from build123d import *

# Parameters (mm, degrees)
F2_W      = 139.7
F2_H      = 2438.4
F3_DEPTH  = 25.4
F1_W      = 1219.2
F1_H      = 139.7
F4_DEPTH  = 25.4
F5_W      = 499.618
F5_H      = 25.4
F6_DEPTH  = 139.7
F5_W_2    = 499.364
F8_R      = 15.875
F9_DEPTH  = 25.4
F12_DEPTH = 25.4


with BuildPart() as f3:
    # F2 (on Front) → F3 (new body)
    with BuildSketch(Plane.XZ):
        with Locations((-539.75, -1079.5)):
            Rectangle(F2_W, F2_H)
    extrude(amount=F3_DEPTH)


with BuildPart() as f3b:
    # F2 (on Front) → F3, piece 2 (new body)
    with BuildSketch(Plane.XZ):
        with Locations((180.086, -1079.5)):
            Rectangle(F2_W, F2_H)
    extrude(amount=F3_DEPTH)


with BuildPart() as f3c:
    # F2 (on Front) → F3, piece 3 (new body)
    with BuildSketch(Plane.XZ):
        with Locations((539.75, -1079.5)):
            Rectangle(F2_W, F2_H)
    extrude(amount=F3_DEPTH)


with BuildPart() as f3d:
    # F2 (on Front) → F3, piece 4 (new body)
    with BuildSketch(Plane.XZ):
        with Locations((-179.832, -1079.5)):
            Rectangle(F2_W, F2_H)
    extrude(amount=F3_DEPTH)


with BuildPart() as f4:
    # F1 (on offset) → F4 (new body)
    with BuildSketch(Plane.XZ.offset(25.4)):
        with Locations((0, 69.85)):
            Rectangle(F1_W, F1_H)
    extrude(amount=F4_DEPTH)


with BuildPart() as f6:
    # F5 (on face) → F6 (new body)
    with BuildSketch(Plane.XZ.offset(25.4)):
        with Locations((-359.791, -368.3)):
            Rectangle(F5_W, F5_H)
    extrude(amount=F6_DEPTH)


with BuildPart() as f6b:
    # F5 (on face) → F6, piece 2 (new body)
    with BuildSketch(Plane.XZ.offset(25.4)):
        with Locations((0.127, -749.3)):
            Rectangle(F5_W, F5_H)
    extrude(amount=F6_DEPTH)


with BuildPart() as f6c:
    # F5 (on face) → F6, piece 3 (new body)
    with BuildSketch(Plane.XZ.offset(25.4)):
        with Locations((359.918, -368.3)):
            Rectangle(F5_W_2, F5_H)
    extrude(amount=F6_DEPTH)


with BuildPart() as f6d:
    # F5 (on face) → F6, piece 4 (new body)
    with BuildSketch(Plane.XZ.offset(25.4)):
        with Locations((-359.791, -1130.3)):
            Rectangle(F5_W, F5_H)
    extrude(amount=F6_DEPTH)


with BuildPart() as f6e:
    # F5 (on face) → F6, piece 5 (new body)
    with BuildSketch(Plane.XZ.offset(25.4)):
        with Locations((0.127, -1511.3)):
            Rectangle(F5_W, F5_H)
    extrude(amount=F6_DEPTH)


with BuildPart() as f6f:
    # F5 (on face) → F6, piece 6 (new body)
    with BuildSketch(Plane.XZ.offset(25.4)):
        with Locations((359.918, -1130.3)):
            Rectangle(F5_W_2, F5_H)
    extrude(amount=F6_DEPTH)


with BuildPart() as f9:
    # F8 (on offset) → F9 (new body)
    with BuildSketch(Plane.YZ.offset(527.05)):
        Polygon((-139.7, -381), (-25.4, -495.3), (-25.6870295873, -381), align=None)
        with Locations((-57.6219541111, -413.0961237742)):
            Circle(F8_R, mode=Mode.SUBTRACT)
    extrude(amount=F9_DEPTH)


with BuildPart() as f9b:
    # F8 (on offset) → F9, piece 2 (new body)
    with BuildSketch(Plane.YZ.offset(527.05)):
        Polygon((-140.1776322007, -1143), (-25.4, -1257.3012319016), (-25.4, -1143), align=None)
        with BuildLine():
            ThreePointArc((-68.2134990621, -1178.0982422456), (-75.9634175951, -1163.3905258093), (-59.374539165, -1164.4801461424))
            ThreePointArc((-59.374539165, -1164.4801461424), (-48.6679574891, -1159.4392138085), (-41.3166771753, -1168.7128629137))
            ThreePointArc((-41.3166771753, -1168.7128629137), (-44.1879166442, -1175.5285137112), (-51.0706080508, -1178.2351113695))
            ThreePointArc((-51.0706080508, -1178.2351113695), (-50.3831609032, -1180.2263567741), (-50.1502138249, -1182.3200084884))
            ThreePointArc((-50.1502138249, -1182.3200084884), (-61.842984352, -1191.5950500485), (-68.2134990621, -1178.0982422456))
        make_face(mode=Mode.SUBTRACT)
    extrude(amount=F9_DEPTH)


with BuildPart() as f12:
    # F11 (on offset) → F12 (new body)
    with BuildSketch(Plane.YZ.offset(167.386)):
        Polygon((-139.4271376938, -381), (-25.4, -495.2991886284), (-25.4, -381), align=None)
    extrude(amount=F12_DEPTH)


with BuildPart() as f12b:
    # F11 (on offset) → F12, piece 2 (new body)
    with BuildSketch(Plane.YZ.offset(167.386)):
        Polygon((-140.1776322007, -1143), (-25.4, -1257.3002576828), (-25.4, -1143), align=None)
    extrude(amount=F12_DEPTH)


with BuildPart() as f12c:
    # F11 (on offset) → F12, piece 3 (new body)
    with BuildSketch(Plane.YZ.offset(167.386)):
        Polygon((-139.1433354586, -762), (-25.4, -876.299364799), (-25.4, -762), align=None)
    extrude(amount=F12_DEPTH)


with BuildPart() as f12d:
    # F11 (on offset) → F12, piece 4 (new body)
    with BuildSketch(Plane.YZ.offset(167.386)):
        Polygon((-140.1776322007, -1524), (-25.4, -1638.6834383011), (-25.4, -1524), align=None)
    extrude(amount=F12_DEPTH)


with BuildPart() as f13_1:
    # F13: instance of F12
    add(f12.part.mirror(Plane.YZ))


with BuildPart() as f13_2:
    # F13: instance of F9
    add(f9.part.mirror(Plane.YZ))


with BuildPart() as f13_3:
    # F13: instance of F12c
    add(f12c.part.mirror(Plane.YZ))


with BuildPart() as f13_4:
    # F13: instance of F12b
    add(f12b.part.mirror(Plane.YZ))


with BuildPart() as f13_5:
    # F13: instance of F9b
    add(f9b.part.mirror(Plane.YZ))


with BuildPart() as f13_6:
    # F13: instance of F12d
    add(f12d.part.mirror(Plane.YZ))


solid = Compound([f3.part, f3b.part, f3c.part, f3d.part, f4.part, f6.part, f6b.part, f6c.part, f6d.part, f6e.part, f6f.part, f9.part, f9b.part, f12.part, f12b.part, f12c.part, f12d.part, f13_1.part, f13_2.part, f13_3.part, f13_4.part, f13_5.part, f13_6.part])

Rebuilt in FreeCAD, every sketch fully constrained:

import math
import FreeCAD as App
import Part
import Sketcher

V = App.Vector
Q = App.Units.Quantity

doc = App.newDocument("Part")
body = doc.addObject("PartDesign::Body", "Body")

sketch1 = body.newObject("Sketcher::SketchObject", "Sketch")
sketch1.AttachmentSupport = (doc.getObject("XZ_Plane"), [""])
sketch1.MapMode = "FlatFace"
sketch1.addGeometry(Part.LineSegment(V(-610, 140, 0), V(-610, -2299, 0)), False)
sketch1.addGeometry(Part.LineSegment(V(-610, -2299, 0), V(-470, -2299, 0)), False)
sketch1.addGeometry(Part.LineSegment(V(-470, -2299, 0), V(-470, 140, 0)), False)
sketch1.addGeometry(Part.LineSegment(V(-470, 140, 0), V(-610, 140, 0)), False)
sketch1.addConstraint(Sketcher.Constraint("Coincident", 0, 2, 1, 1))
sketch1.addConstraint(Sketcher.Constraint("Coincident", 1, 2, 2, 1))
sketch1.addConstraint(Sketcher.Constraint("Coincident", 2, 2, 3, 1))
sketch1.addConstraint(Sketcher.Constraint("Coincident", 3, 2, 0, 1))
sketch1.addConstraint(Sketcher.Constraint("Vertical", 0))
sketch1.addConstraint(Sketcher.Constraint("Horizontal", 1))
sketch1.addConstraint(Sketcher.Constraint("Vertical", 2))
sketch1.addConstraint(Sketcher.Constraint("Horizontal", 3))
sketch1.addConstraint(Sketcher.Constraint("DistanceY", 0, 2, 0, 1, Q("96 in")))
sketch1.addConstraint(Sketcher.Constraint("DistanceX", 1, 1, 1, 2, Q("5.5 in")))
sketch1.addConstraint(Sketcher.Constraint("DistanceX", 0, 2, -1, 1, Q("24 in")))
sketch1.addConstraint(Sketcher.Constraint("DistanceY", 0, 2, -1, 1, Q("90.5 in")))
pad1 = body.newObject("PartDesign::Pad", "Pad")
pad1.Profile = sketch1
pad1.Length = Q("1 in")
body2 = doc.addObject("PartDesign::Body", "Body001")

sketch2 = body2.newObject("Sketcher::SketchObject", "Sketch001")
sketch2.AttachmentSupport = (doc.getObject("XZ_Plane001"), [""])
sketch2.MapMode = "FlatFace"
sketch2.addGeometry(Part.LineSegment(V(110, 140, 0), V(110, -2299, 0)), False)
sketch2.addGeometry(Part.LineSegment(V(110, -2299, 0), V(250, -2299, 0)), False)
sketch2.addGeometry(Part.LineSegment(V(250, -2299, 0), V(250, 140, 0)), False)
sketch2.addGeometry(Part.LineSegment(V(250, 140, 0), V(110, 140, 0)), False)
sketch2.addConstraint(Sketcher.Constraint("Coincident", 0, 2, 1, 1))
sketch2.addConstraint(Sketcher.Constraint("Coincident", 1, 2, 2, 1))
sketch2.addConstraint(Sketcher.Constraint("Coincident", 2, 2, 3, 1))
sketch2.addConstraint(Sketcher.Constraint("Coincident", 3, 2, 0, 1))
sketch2.addConstraint(Sketcher.Constraint("Vertical", 0))
sketch2.addConstraint(Sketcher.Constraint("Horizontal", 1))
sketch2.addConstraint(Sketcher.Constraint("Vertical", 2))
sketch2.addConstraint(Sketcher.Constraint("Horizontal", 3))
sketch2.addConstraint(Sketcher.Constraint("DistanceY", 0, 2, 0, 1, Q("96 in")))
sketch2.addConstraint(Sketcher.Constraint("DistanceX", 1, 1, 1, 2, Q("5.5 in")))
sketch2.addConstraint(Sketcher.Constraint("DistanceY", 0, 2, -1, 1, Q("90.5 in")))
sketch2.addConstraint(Sketcher.Constraint("DistanceX", -1, 1, 0, 2, Q("4.34 in")))
pad2 = body2.newObject("PartDesign::Pad", "Pad001")
pad2.Profile = sketch2
pad2.Length = Q("1 in")
body3 = doc.addObject("PartDesign::Body", "Body002")

sketch3 = body3.newObject("Sketcher::SketchObject", "Sketch002")
sketch3.AttachmentSupport = (doc.getObject("XZ_Plane002"), [""])
sketch3.MapMode = "FlatFace"
sketch3.addGeometry(Part.LineSegment(V(470, 140, 0), V(470, -2299, 0)), False)
sketch3.addGeometry(Part.LineSegment(V(470, -2299, 0), V(610, -2299, 0)), False)
sketch3.addGeometry(Part.LineSegment(V(610, -2299, 0), V(610, 140, 0)), False)
sketch3.addGeometry(Part.LineSegment(V(610, 140, 0), V(470, 140, 0)), False)
sketch3.addConstraint(Sketcher.Constraint("Coincident", 0, 2, 1, 1))
sketch3.addConstraint(Sketcher.Constraint("Coincident", 1, 2, 2, 1))
sketch3.addConstraint(Sketcher.Constraint("Coincident", 2, 2, 3, 1))
sketch3.addConstraint(Sketcher.Constraint("Coincident", 3, 2, 0, 1))
sketch3.addConstraint(Sketcher.Constraint("Vertical", 0))
sketch3.addConstraint(Sketcher.Constraint("Horizontal", 1))
sketch3.addConstraint(Sketcher.Constraint("Vertical", 2))
sketch3.addConstraint(Sketcher.Constraint("Horizontal", 3))
sketch3.addConstraint(Sketcher.Constraint("DistanceY", 0, 2, 0, 1, Q("96 in")))
sketch3.addConstraint(Sketcher.Constraint("DistanceX", 1, 1, 1, 2, Q("5.5 in")))
sketch3.addConstraint(Sketcher.Constraint("DistanceX", -1, 1, 1, 2, Q("24 in")))
sketch3.addConstraint(Sketcher.Constraint("DistanceY", 0, 2, -1, 1, Q("90.5 in")))
pad3 = body3.newObject("PartDesign::Pad", "Pad002")
pad3.Profile = sketch3
pad3.Length = Q("1 in")
body4 = doc.addObject("PartDesign::Body", "Body003")

sketch4 = body4.newObject("Sketcher::SketchObject", "Sketch003")
sketch4.AttachmentSupport = (doc.getObject("XZ_Plane003"), [""])
sketch4.MapMode = "FlatFace"
sketch4.addGeometry(Part.LineSegment(V(-250, 140, 0), V(-250, -2299, 0)), False)
sketch4.addGeometry(Part.LineSegment(V(-250, -2299, 0), V(-110, -2299, 0)), False)
sketch4.addGeometry(Part.LineSegment(V(-110, -2299, 0), V(-110, 140, 0)), False)
sketch4.addGeometry(Part.LineSegment(V(-110, 140, 0), V(-250, 140, 0)), False)
sketch4.addConstraint(Sketcher.Constraint("Coincident", 0, 2, 1, 1))
sketch4.addConstraint(Sketcher.Constraint("Coincident", 1, 2, 2, 1))
sketch4.addConstraint(Sketcher.Constraint("Coincident", 2, 2, 3, 1))
sketch4.addConstraint(Sketcher.Constraint("Coincident", 3, 2, 0, 1))
sketch4.addConstraint(Sketcher.Constraint("Vertical", 0))
sketch4.addConstraint(Sketcher.Constraint("Horizontal", 1))
sketch4.addConstraint(Sketcher.Constraint("Vertical", 2))
sketch4.addConstraint(Sketcher.Constraint("Horizontal", 3))
sketch4.addConstraint(Sketcher.Constraint("DistanceY", 0, 2, 0, 1, Q("96 in")))
sketch4.addConstraint(Sketcher.Constraint("DistanceX", 1, 1, 1, 2, Q("5.5 in")))
sketch4.addConstraint(Sketcher.Constraint("DistanceY", 0, 2, -1, 1, Q("90.5 in")))
sketch4.addConstraint(Sketcher.Constraint("DistanceX", 0, 2, -1, 1, Q("9.83 in")))
pad4 = body4.newObject("PartDesign::Pad", "Pad003")
pad4.Profile = sketch4
pad4.Length = Q("1 in")
body5 = doc.addObject("PartDesign::Body", "Body004")

sketch5 = body5.newObject("Sketcher::SketchObject", "Sketch004")
sketch5.AttachmentSupport = (doc.getObject("XZ_Plane004"), [""])
sketch5.MapMode = "FlatFace"
sketch5.AttachmentOffset = App.Placement(V(0, 0, 1 * 25.4), App.Rotation())
sketch5.addGeometry(Part.LineSegment(V(-610, 140, 0), V(-610, 0, 0)), False)
sketch5.addGeometry(Part.LineSegment(V(-610, 0, 0), V(610, 0, 0)), False)
sketch5.addGeometry(Part.LineSegment(V(610, 0, 0), V(610, 140, 0)), False)
sketch5.addGeometry(Part.LineSegment(V(610, 140, 0), V(-610, 140, 0)), False)
sketch5.addConstraint(Sketcher.Constraint("Coincident", 0, 2, 1, 1))
sketch5.addConstraint(Sketcher.Constraint("Coincident", 1, 2, 2, 1))
sketch5.addConstraint(Sketcher.Constraint("Coincident", 2, 2, 3, 1))
sketch5.addConstraint(Sketcher.Constraint("Coincident", 3, 2, 0, 1))
sketch5.addConstraint(Sketcher.Constraint("Vertical", 0))
sketch5.addConstraint(Sketcher.Constraint("Horizontal", 1))
sketch5.addConstraint(Sketcher.Constraint("Vertical", 2))
sketch5.addConstraint(Sketcher.Constraint("Horizontal", 3))
sketch5.addConstraint(Sketcher.Constraint("Symmetric", 0, 2, 1, 2, -1, 1))
sketch5.addConstraint(Sketcher.Constraint("DistanceX", 1, 1, 1, 2, Q("48 in")))
sketch5.addConstraint(Sketcher.Constraint("DistanceY", 0, 2, 0, 1, Q("5.5 in")))
pad5 = body5.newObject("PartDesign::Pad", "Pad004")
pad5.Profile = sketch5
pad5.Length = Q("1 in")
body6 = doc.addObject("PartDesign::Body", "Body005")

sketch6 = body6.newObject("Sketcher::SketchObject", "Sketch005")
sketch6.AttachmentSupport = (doc.getObject("XZ_Plane005"), [""])
sketch6.MapMode = "FlatFace"
sketch6.AttachmentOffset = App.Placement(V(0, 0, 1 * 25.4), App.Rotation())
sketch6.addGeometry(Part.LineSegment(V(-610, -356, 0), V(-610, -381, 0)), False)
sketch6.addGeometry(Part.LineSegment(V(-610, -381, 0), V(-110, -381, 0)), False)
sketch6.addGeometry(Part.LineSegment(V(-110, -381, 0), V(-110, -356, 0)), False)
sketch6.addGeometry(Part.LineSegment(V(-110, -356, 0), V(-610, -356, 0)), False)
sketch6.addConstraint(Sketcher.Constraint("Coincident", 0, 2, 1, 1))
sketch6.addConstraint(Sketcher.Constraint("Coincident", 1, 2, 2, 1))
sketch6.addConstraint(Sketcher.Constraint("Coincident", 2, 2, 3, 1))
sketch6.addConstraint(Sketcher.Constraint("Coincident", 3, 2, 0, 1))
sketch6.addConstraint(Sketcher.Constraint("Vertical", 0))
sketch6.addConstraint(Sketcher.Constraint("Horizontal", 1))
sketch6.addConstraint(Sketcher.Constraint("Vertical", 2))
sketch6.addConstraint(Sketcher.Constraint("Horizontal", 3))
sketch6.addConstraint(Sketcher.Constraint("DistanceY", 0, 2, 0, 1, Q("1 in")))
sketch6.addConstraint(Sketcher.Constraint("DistanceX", 0, 2, -1, 1, Q("24 in")))
sketch6.addConstraint(Sketcher.Constraint("DistanceY", 0, 2, -1, 1, Q("15 in")))
sketch6.addConstraint(Sketcher.Constraint("DistanceX", 1, 1, 1, 2, Q("19.67 in")))
pad6 = body6.newObject("PartDesign::Pad", "Pad005")
pad6.Profile = sketch6
pad6.Length = Q("5.5 in")
body7 = doc.addObject("PartDesign::Body", "Body006")

sketch7 = body7.newObject("Sketcher::SketchObject", "Sketch006")
sketch7.AttachmentSupport = (doc.getObject("XZ_Plane006"), [""])
sketch7.MapMode = "FlatFace"
sketch7.AttachmentOffset = App.Placement(V(0, 0, 1 * 25.4), App.Rotation())
sketch7.addGeometry(Part.LineSegment(V(-250, -737, 0), V(-250, -762, 0)), False)
sketch7.addGeometry(Part.LineSegment(V(-250, -762, 0), V(250, -762, 0)), False)
sketch7.addGeometry(Part.LineSegment(V(250, -762, 0), V(250, -737, 0)), False)
sketch7.addGeometry(Part.LineSegment(V(250, -737, 0), V(-250, -737, 0)), False)
sketch7.addConstraint(Sketcher.Constraint("Coincident", 0, 2, 1, 1))
sketch7.addConstraint(Sketcher.Constraint("Coincident", 1, 2, 2, 1))
sketch7.addConstraint(Sketcher.Constraint("Coincident", 2, 2, 3, 1))
sketch7.addConstraint(Sketcher.Constraint("Coincident", 3, 2, 0, 1))
sketch7.addConstraint(Sketcher.Constraint("Vertical", 0))
sketch7.addConstraint(Sketcher.Constraint("Horizontal", 1))
sketch7.addConstraint(Sketcher.Constraint("Vertical", 2))
sketch7.addConstraint(Sketcher.Constraint("Horizontal", 3))
sketch7.addConstraint(Sketcher.Constraint("DistanceY", 0, 2, 0, 1, Q("1 in")))
sketch7.addConstraint(Sketcher.Constraint("DistanceY", 0, 2, -1, 1, Q("30 in")))
sketch7.addConstraint(Sketcher.Constraint("DistanceX", 1, 1, 1, 2, Q("19.67 in")))
sketch7.addConstraint(Sketcher.Constraint("DistanceX", 0, 2, -1, 1, Q("9.83 in")))
pad7 = body7.newObject("PartDesign::Pad", "Pad006")
pad7.Profile = sketch7
pad7.Length = Q("5.5 in")
body8 = doc.addObject("PartDesign::Body", "Body007")

sketch8 = body8.newObject("Sketcher::SketchObject", "Sketch007")
sketch8.AttachmentSupport = (doc.getObject("XZ_Plane007"), [""])
sketch8.MapMode = "FlatFace"
sketch8.AttachmentOffset = App.Placement(V(0, 0, 1 * 25.4), App.Rotation())
sketch8.addGeometry(Part.LineSegment(V(110, -356, 0), V(110, -381, 0)), False)
sketch8.addGeometry(Part.LineSegment(V(110, -381, 0), V(610, -381, 0)), False)
sketch8.addGeometry(Part.LineSegment(V(610, -381, 0), V(610, -356, 0)), False)
sketch8.addGeometry(Part.LineSegment(V(610, -356, 0), V(110, -356, 0)), False)
sketch8.addConstraint(Sketcher.Constraint("Coincident", 0, 2, 1, 1))
sketch8.addConstraint(Sketcher.Constraint("Coincident", 1, 2, 2, 1))
sketch8.addConstraint(Sketcher.Constraint("Coincident", 2, 2, 3, 1))
sketch8.addConstraint(Sketcher.Constraint("Coincident", 3, 2, 0, 1))
sketch8.addConstraint(Sketcher.Constraint("Vertical", 0))
sketch8.addConstraint(Sketcher.Constraint("Horizontal", 1))
sketch8.addConstraint(Sketcher.Constraint("Vertical", 2))
sketch8.addConstraint(Sketcher.Constraint("Horizontal", 3))
sketch8.addConstraint(Sketcher.Constraint("DistanceY", 0, 2, 0, 1, Q("1 in")))
sketch8.addConstraint(Sketcher.Constraint("DistanceY", 0, 2, -1, 1, Q("15 in")))
sketch8.addConstraint(Sketcher.Constraint("DistanceX", -1, 1, 1, 2, Q("24 in")))
sketch8.addConstraint(Sketcher.Constraint("DistanceX", 1, 1, 1, 2, Q("19.66 in")))
pad8 = body8.newObject("PartDesign::Pad", "Pad007")
pad8.Profile = sketch8
pad8.Length = Q("5.5 in")
body9 = doc.addObject("PartDesign::Body", "Body008")

sketch9 = body9.newObject("Sketcher::SketchObject", "Sketch008")
sketch9.AttachmentSupport = (doc.getObject("XZ_Plane008"), [""])
sketch9.MapMode = "FlatFace"
sketch9.AttachmentOffset = App.Placement(V(0, 0, 1 * 25.4), App.Rotation())
sketch9.addGeometry(Part.LineSegment(V(-610, -1118, 0), V(-610, -1143, 0)), False)
sketch9.addGeometry(Part.LineSegment(V(-610, -1143, 0), V(-110, -1143, 0)), False)
sketch9.addGeometry(Part.LineSegment(V(-110, -1143, 0), V(-110, -1118, 0)), False)
sketch9.addGeometry(Part.LineSegment(V(-110, -1118, 0), V(-610, -1118, 0)), False)
sketch9.addConstraint(Sketcher.Constraint("Coincident", 0, 2, 1, 1))
sketch9.addConstraint(Sketcher.Constraint("Coincident", 1, 2, 2, 1))
sketch9.addConstraint(Sketcher.Constraint("Coincident", 2, 2, 3, 1))
sketch9.addConstraint(Sketcher.Constraint("Coincident", 3, 2, 0, 1))
sketch9.addConstraint(Sketcher.Constraint("Vertical", 0))
sketch9.addConstraint(Sketcher.Constraint("Horizontal", 1))
sketch9.addConstraint(Sketcher.Constraint("Vertical", 2))
sketch9.addConstraint(Sketcher.Constraint("Horizontal", 3))
sketch9.addConstraint(Sketcher.Constraint("DistanceY", 0, 2, 0, 1, Q("1 in")))
sketch9.addConstraint(Sketcher.Constraint("DistanceX", 0, 2, -1, 1, Q("24 in")))
sketch9.addConstraint(Sketcher.Constraint("DistanceY", 0, 2, -1, 1, Q("45 in")))
sketch9.addConstraint(Sketcher.Constraint("DistanceX", 1, 1, 1, 2, Q("19.67 in")))
pad9 = body9.newObject("PartDesign::Pad", "Pad008")
pad9.Profile = sketch9
pad9.Length = Q("5.5 in")
body10 = doc.addObject("PartDesign::Body", "Body009")

sketch10 = body10.newObject("Sketcher::SketchObject", "Sketch009")
sketch10.AttachmentSupport = (doc.getObject("XZ_Plane009"), [""])
sketch10.MapMode = "FlatFace"
sketch10.AttachmentOffset = App.Placement(V(0, 0, 1 * 25.4), App.Rotation())
sketch10.addGeometry(Part.LineSegment(V(-250, -1499, 0), V(-250, -1524, 0)), False)
sketch10.addGeometry(Part.LineSegment(V(-250, -1524, 0), V(250, -1524, 0)), False)
sketch10.addGeometry(Part.LineSegment(V(250, -1524, 0), V(250, -1499, 0)), False)
sketch10.addGeometry(Part.LineSegment(V(250, -1499, 0), V(-250, -1499, 0)), False)
sketch10.addConstraint(Sketcher.Constraint("Coincident", 0, 2, 1, 1))
sketch10.addConstraint(Sketcher.Constraint("Coincident", 1, 2, 2, 1))
sketch10.addConstraint(Sketcher.Constraint("Coincident", 2, 2, 3, 1))
sketch10.addConstraint(Sketcher.Constraint("Coincident", 3, 2, 0, 1))
sketch10.addConstraint(Sketcher.Constraint("Vertical", 0))
sketch10.addConstraint(Sketcher.Constraint("Horizontal", 1))
sketch10.addConstraint(Sketcher.Constraint("Vertical", 2))
sketch10.addConstraint(Sketcher.Constraint("Horizontal", 3))
sketch10.addConstraint(Sketcher.Constraint("DistanceY", 0, 2, 0, 1, Q("1 in")))
sketch10.addConstraint(Sketcher.Constraint("DistanceY", 0, 2, -1, 1, Q("60 in")))
sketch10.addConstraint(Sketcher.Constraint("DistanceX", 1, 1, 1, 2, Q("19.67 in")))
sketch10.addConstraint(Sketcher.Constraint("DistanceX", 0, 2, -1, 1, Q("9.83 in")))
pad10 = body10.newObject("PartDesign::Pad", "Pad009")
pad10.Profile = sketch10
pad10.Length = Q("5.5 in")
body11 = doc.addObject("PartDesign::Body", "Body010")

sketch11 = body11.newObject("Sketcher::SketchObject", "Sketch010")
sketch11.AttachmentSupport = (doc.getObject("XZ_Plane010"), [""])
sketch11.MapMode = "FlatFace"
sketch11.AttachmentOffset = App.Placement(V(0, 0, 1 * 25.4), App.Rotation())
sketch11.addGeometry(Part.LineSegment(V(110, -1118, 0), V(110, -1143, 0)), False)
sketch11.addGeometry(Part.LineSegment(V(110, -1143, 0), V(610, -1143, 0)), False)
sketch11.addGeometry(Part.LineSegment(V(610, -1143, 0), V(610, -1118, 0)), False)
sketch11.addGeometry(Part.LineSegment(V(610, -1118, 0), V(110, -1118, 0)), False)
sketch11.addConstraint(Sketcher.Constraint("Coincident", 0, 2, 1, 1))
sketch11.addConstraint(Sketcher.Constraint("Coincident", 1, 2, 2, 1))
sketch11.addConstraint(Sketcher.Constraint("Coincident", 2, 2, 3, 1))
sketch11.addConstraint(Sketcher.Constraint("Coincident", 3, 2, 0, 1))
sketch11.addConstraint(Sketcher.Constraint("Vertical", 0))
sketch11.addConstraint(Sketcher.Constraint("Horizontal", 1))
sketch11.addConstraint(Sketcher.Constraint("Vertical", 2))
sketch11.addConstraint(Sketcher.Constraint("Horizontal", 3))
sketch11.addConstraint(Sketcher.Constraint("DistanceY", 0, 2, 0, 1, Q("1 in")))
sketch11.addConstraint(Sketcher.Constraint("DistanceY", 0, 2, -1, 1, Q("45 in")))
sketch11.addConstraint(Sketcher.Constraint("DistanceX", -1, 1, 1, 2, Q("24 in")))
sketch11.addConstraint(Sketcher.Constraint("DistanceX", 1, 1, 1, 2, Q("19.66 in")))
pad11 = body11.newObject("PartDesign::Pad", "Pad010")
pad11.Profile = sketch11
pad11.Length = Q("5.5 in")
body12 = doc.addObject("PartDesign::Body", "Body011")

sketch12 = body12.newObject("Sketcher::SketchObject", "Sketch011")
sketch12.AttachmentSupport = (doc.getObject("YZ_Plane011"), [""])
sketch12.MapMode = "FlatFace"
sketch12.AttachmentOffset = App.Placement(V(0, 0, 20.75 * 25.4), App.Rotation())
sketch12.addGeometry(Part.LineSegment(V(-140, -381, 0), V(-25, -495, 0)), False)
sketch12.addGeometry(Part.LineSegment(V(-25, -495, 0), V(-26, -381, 0)), False)
sketch12.addGeometry(Part.LineSegment(V(-26, -381, 0), V(-140, -381, 0)), False)
sketch12.addGeometry(Part.Circle(V(-58, -413, 0), V(0, 0, 1), 16), False)
sketch12.addConstraint(Sketcher.Constraint("Coincident", 0, 2, 1, 1))
sketch12.addConstraint(Sketcher.Constraint("Coincident", 1, 2, 2, 1))
sketch12.addConstraint(Sketcher.Constraint("Coincident", 2, 2, 0, 1))
sketch12.addConstraint(Sketcher.Constraint("Horizontal", 2))
sketch12.addConstraint(Sketcher.Constraint("Diameter", 3, Q("1.25 in")))
sketch12.addConstraint(Sketcher.Constraint("DistanceX", 0, 2, -1, 1, Q("1 in")))
sketch12.addConstraint(Sketcher.Constraint("DistanceY", 1, 2, -1, 1, Q("15 in")))
sketch12.addConstraint(Sketcher.Constraint("Angle", 0, Q("-45 deg")))
sketch12.addConstraint(Sketcher.Constraint("DistanceY", 0, 2, -1, 1, Q("19.5 in")))
sketch12.addConstraint(Sketcher.Constraint("DistanceX", 2, 2, 2, 1, Q("114.01297 mm")))
sketch12.addConstraint(Sketcher.Constraint("DistanceX", 3, 3, -1, 1, Q("57.621954 mm")))
sketch12.addConstraint(Sketcher.Constraint("DistanceY", 3, 3, -1, 1, Q("413.096124 mm")))
pad12 = body12.newObject("PartDesign::Pad", "Pad011")
pad12.Profile = sketch12
pad12.Length = Q("1 in")
body13 = doc.addObject("PartDesign::Body", "Body012")

sketch13 = body13.newObject("Sketcher::SketchObject", "Sketch012")
sketch13.AttachmentSupport = (doc.getObject("YZ_Plane012"), [""])
sketch13.MapMode = "FlatFace"
sketch13.AttachmentOffset = App.Placement(V(0, 0, 20.75 * 25.4), App.Rotation())
sketch13.addGeometry(Part.LineSegment(V(-140.2, -1143, 0), V(-25.4, -1257.3, 0)), False)
sketch13.addGeometry(Part.LineSegment(V(-25.4, -1257.3, 0), V(-25.4, -1143, 0)), False)
sketch13.addGeometry(Part.LineSegment(V(-25.4, -1143, 0), V(-140.2, -1143, 0)), False)
sketch13.addGeometry(Part.ArcOfCircle(Part.Circle(V(-59.7, -1182.3, 0), V(0, 0, 1), 9.5), math.radians(154), math.radians(360)), False)
sketch13.addGeometry(Part.ArcOfCircle(Part.Circle(V(-68, -1168.6, 0), V(0, 0, 1), 9.5), math.radians(25), math.radians(269)), False)
sketch13.addGeometry(Part.ArcOfCircle(Part.Circle(V(-50.8, -1168.7, 0), V(0, 0, 1), 9.5), math.radians(0), math.radians(154)), False)
sketch13.addGeometry(Part.ArcOfCircle(Part.Circle(V(-50.8, -1168.7, 0), V(0, 0, 1), 9.5), math.radians(-91), math.radians(0)), False)
sketch13.addGeometry(Part.ArcOfCircle(Part.Circle(V(-59.7, -1182.3, 0), V(0, 0, 1), 9.5), math.radians(0), math.radians(25)), False)
sketch13.addConstraint(Sketcher.Constraint("Coincident", 0, 2, 1, 1))
sketch13.addConstraint(Sketcher.Constraint("Coincident", 1, 2, 2, 1))
sketch13.addConstraint(Sketcher.Constraint("Coincident", 2, 2, 0, 1))
sketch13.addConstraint(Sketcher.Constraint("Coincident", 3, 1, 4, 2))
sketch13.addConstraint(Sketcher.Constraint("Coincident", 4, 1, 5, 2))
sketch13.addConstraint(Sketcher.Constraint("Tangent", 5, 1, 6, 2))
sketch13.addConstraint(Sketcher.Constraint("Coincident", 6, 1, 7, 2))
sketch13.addConstraint(Sketcher.Constraint("Tangent", 7, 1, 3, 2))
sketch13.addConstraint(Sketcher.Constraint("Vertical", 1))
sketch13.addConstraint(Sketcher.Constraint("Horizontal", 2))
sketch13.addConstraint(Sketcher.Constraint("Equal", 3, 4))
sketch13.addConstraint(Sketcher.Constraint("Equal", 4, 5))
sketch13.addConstraint(Sketcher.Constraint("Equal", 5, 6))
sketch13.addConstraint(Sketcher.Constraint("Equal", 6, 7))
sketch13.addConstraint(Sketcher.Constraint("Horizontal", 6, 3, 5, 1))
sketch13.addConstraint(Sketcher.Constraint("Horizontal", 3, 3, 7, 1))
sketch13.addConstraint(Sketcher.Constraint("DistanceX", 0, 2, -1, 1, Q("1 in")))
sketch13.addConstraint(Sketcher.Constraint("DistanceY", 1, 2, -1, 1, Q("45 in")))
sketch13.addConstraint(Sketcher.Constraint("Radius", 3, Q("0.375 in")))
sketch13.addConstraint(Sketcher.Constraint("DistanceY", 1, 1, 1, 2, Q("114.301232 mm")))
sketch13.addConstraint(Sketcher.Constraint("DistanceX", 3, 1, -1, 1, Q("68.213499 mm")))
sketch13.addConstraint(Sketcher.Constraint("Distance", 0, Q("161.983569 mm")))
sketch13.addConstraint(Sketcher.Constraint("DistanceY", 3, 3, -1, 1, Q("1182.320008 mm")))
sketch13.addConstraint(Sketcher.Constraint("DistanceX", 4, 3, -1, 1, Q("67.973812 mm")))
sketch13.addConstraint(Sketcher.Constraint("DistanceY", 4, 3, -1, 1, Q("1168.576258 mm")))
sketch13.addConstraint(Sketcher.Constraint("DistanceX", 4, 1, -1, 1, Q("59.374539 mm")))
sketch13.addConstraint(Sketcher.Constraint("DistanceX", 6, 1, -1, 1, Q("51.070608 mm")))
pad13 = body13.newObject("PartDesign::Pad", "Pad012")
pad13.Profile = sketch13
pad13.Length = Q("1 in")
body14 = doc.addObject("PartDesign::Body", "Body013")

sketch14 = body14.newObject("Sketcher::SketchObject", "Sketch013")
sketch14.AttachmentSupport = (doc.getObject("YZ_Plane013"), [""])
sketch14.MapMode = "FlatFace"
sketch14.AttachmentOffset = App.Placement(V(0, 0, 6.59 * 25.4), App.Rotation())
sketch14.addGeometry(Part.LineSegment(V(-139, -381, 0), V(-25, -495, 0)), False)
sketch14.addGeometry(Part.LineSegment(V(-25, -495, 0), V(-25, -381, 0)), False)
sketch14.addGeometry(Part.LineSegment(V(-25, -381, 0), V(-139, -381, 0)), False)
sketch14.addConstraint(Sketcher.Constraint("Coincident", 0, 2, 1, 1))
sketch14.addConstraint(Sketcher.Constraint("Coincident", 1, 2, 2, 1))
sketch14.addConstraint(Sketcher.Constraint("Coincident", 2, 2, 0, 1))
sketch14.addConstraint(Sketcher.Constraint("Vertical", 1))
sketch14.addConstraint(Sketcher.Constraint("Horizontal", 2))
sketch14.addConstraint(Sketcher.Constraint("DistanceX", 0, 2, -1, 1, Q("1 in")))
sketch14.addConstraint(Sketcher.Constraint("DistanceY", 1, 2, -1, 1, Q("15 in")))
sketch14.addConstraint(Sketcher.Constraint("DistanceY", 1, 1, 1, 2, Q("114.299189 mm")))
sketch14.addConstraint(Sketcher.Constraint("Distance", 0, Q("161.451208 mm")))
pad14 = body14.newObject("PartDesign::Pad", "Pad013")
pad14.Profile = sketch14
pad14.Length = Q("1 in")
body15 = doc.addObject("PartDesign::Body", "Body014")

sketch15 = body15.newObject("Sketcher::SketchObject", "Sketch014")
sketch15.AttachmentSupport = (doc.getObject("YZ_Plane014"), [""])
sketch15.MapMode = "FlatFace"
sketch15.AttachmentOffset = App.Placement(V(0, 0, 6.59 * 25.4), App.Rotation())
sketch15.addGeometry(Part.LineSegment(V(-140, -1143, 0), V(-25, -1257, 0)), False)
sketch15.addGeometry(Part.LineSegment(V(-25, -1257, 0), V(-25, -1143, 0)), False)
sketch15.addGeometry(Part.LineSegment(V(-25, -1143, 0), V(-140, -1143, 0)), False)
sketch15.addConstraint(Sketcher.Constraint("Coincident", 0, 2, 1, 1))
sketch15.addConstraint(Sketcher.Constraint("Coincident", 1, 2, 2, 1))
sketch15.addConstraint(Sketcher.Constraint("Coincident", 2, 2, 0, 1))
sketch15.addConstraint(Sketcher.Constraint("Vertical", 1))
sketch15.addConstraint(Sketcher.Constraint("Horizontal", 2))
sketch15.addConstraint(Sketcher.Constraint("DistanceX", 0, 2, -1, 1, Q("1 in")))
sketch15.addConstraint(Sketcher.Constraint("DistanceY", 1, 2, -1, 1, Q("45 in")))
sketch15.addConstraint(Sketcher.Constraint("Distance", 0, Q("161.982881 mm")))
sketch15.addConstraint(Sketcher.Constraint("DistanceX", 2, 2, 2, 1, Q("114.777632 mm")))
pad15 = body15.newObject("PartDesign::Pad", "Pad014")
pad15.Profile = sketch15
pad15.Length = Q("1 in")
body16 = doc.addObject("PartDesign::Body", "Body015")

sketch16 = body16.newObject("Sketcher::SketchObject", "Sketch015")
sketch16.AttachmentSupport = (doc.getObject("YZ_Plane015"), [""])
sketch16.MapMode = "FlatFace"
sketch16.AttachmentOffset = App.Placement(V(0, 0, 6.59 * 25.4), App.Rotation())
sketch16.addGeometry(Part.LineSegment(V(-139, -762, 0), V(-25, -876, 0)), False)
sketch16.addGeometry(Part.LineSegment(V(-25, -876, 0), V(-25, -762, 0)), False)
sketch16.addGeometry(Part.LineSegment(V(-25, -762, 0), V(-139, -762, 0)), False)
sketch16.addConstraint(Sketcher.Constraint("Coincident", 0, 2, 1, 1))
sketch16.addConstraint(Sketcher.Constraint("Coincident", 1, 2, 2, 1))
sketch16.addConstraint(Sketcher.Constraint("Coincident", 2, 2, 0, 1))
sketch16.addConstraint(Sketcher.Constraint("Vertical", 1))
sketch16.addConstraint(Sketcher.Constraint("Horizontal", 2))
sketch16.addConstraint(Sketcher.Constraint("DistanceX", 0, 2, -1, 1, Q("1 in")))
sketch16.addConstraint(Sketcher.Constraint("DistanceY", 1, 2, -1, 1, Q("30 in")))
sketch16.addConstraint(Sketcher.Constraint("Distance", 0, Q("161.251019 mm")))
sketch16.addConstraint(Sketcher.Constraint("DistanceX", 2, 2, 2, 1, Q("113.743335 mm")))
pad16 = body16.newObject("PartDesign::Pad", "Pad015")
pad16.Profile = sketch16
pad16.Length = Q("1 in")
body17 = doc.addObject("PartDesign::Body", "Body016")

sketch17 = body17.newObject("Sketcher::SketchObject", "Sketch016")
sketch17.AttachmentSupport = (doc.getObject("YZ_Plane016"), [""])
sketch17.MapMode = "FlatFace"
sketch17.AttachmentOffset = App.Placement(V(0, 0, 6.59 * 25.4), App.Rotation())
sketch17.addGeometry(Part.LineSegment(V(-140, -1524, 0), V(-25, -1639, 0)), False)
sketch17.addGeometry(Part.LineSegment(V(-25, -1639, 0), V(-25, -1524, 0)), False)
sketch17.addGeometry(Part.LineSegment(V(-25, -1524, 0), V(-140, -1524, 0)), False)
sketch17.addConstraint(Sketcher.Constraint("Coincident", 0, 2, 1, 1))
sketch17.addConstraint(Sketcher.Constraint("Coincident", 1, 2, 2, 1))
sketch17.addConstraint(Sketcher.Constraint("Coincident", 2, 2, 0, 1))
sketch17.addConstraint(Sketcher.Constraint("Vertical", 1))
sketch17.addConstraint(Sketcher.Constraint("Horizontal", 2))
sketch17.addConstraint(Sketcher.Constraint("DistanceX", 0, 2, -1, 1, Q("1 in")))
sketch17.addConstraint(Sketcher.Constraint("DistanceY", 1, 2, -1, 1, Q("60 in")))
sketch17.addConstraint(Sketcher.Constraint("DistanceY", 1, 1, 1, 2, Q("114.683438 mm")))
sketch17.addConstraint(Sketcher.Constraint("DistanceX", 2, 2, 2, 1, Q("114.777632 mm")))
pad17 = body17.newObject("PartDesign::Pad", "Pad016")
pad17.Profile = sketch17
pad17.Length = Q("1 in")
body18 = doc.addObject("PartDesign::Body", "Body017")
doc.recompute()

mirroring = doc.addObject("Part::Mirroring", "Mirroring")
mirroring.Source = body14
mirroring.Base = V(0, 0, 0)
mirroring.Normal = V(1, 0, 0)
body18.BaseFeature = mirroring
doc.recompute()
body19 = doc.addObject("PartDesign::Body", "Body018")
doc.recompute()

mirroring2 = doc.addObject("Part::Mirroring", "Mirroring001")
mirroring2.Source = body12
mirroring2.Base = V(0, 0, 0)
mirroring2.Normal = V(1, 0, 0)
body19.BaseFeature = mirroring2
doc.recompute()
body20 = doc.addObject("PartDesign::Body", "Body019")
doc.recompute()

mirroring3 = doc.addObject("Part::Mirroring", "Mirroring002")
mirroring3.Source = body16
mirroring3.Base = V(0, 0, 0)
mirroring3.Normal = V(1, 0, 0)
body20.BaseFeature = mirroring3
doc.recompute()
body21 = doc.addObject("PartDesign::Body", "Body020")
doc.recompute()

mirroring4 = doc.addObject("Part::Mirroring", "Mirroring003")
mirroring4.Source = body15
mirroring4.Base = V(0, 0, 0)
mirroring4.Normal = V(1, 0, 0)
body21.BaseFeature = mirroring4
doc.recompute()
body22 = doc.addObject("PartDesign::Body", "Body021")
doc.recompute()

mirroring5 = doc.addObject("Part::Mirroring", "Mirroring004")
mirroring5.Source = body13
mirroring5.Base = V(0, 0, 0)
mirroring5.Normal = V(1, 0, 0)
body22.BaseFeature = mirroring5
doc.recompute()
body23 = doc.addObject("PartDesign::Body", "Body022")
doc.recompute()

mirroring6 = doc.addObject("Part::Mirroring", "Mirroring005")
mirroring6.Source = body17
mirroring6.Base = V(0, 0, 0)
mirroring6.Normal = V(1, 0, 0)
body23.BaseFeature = mirroring6
doc.recompute()

doc.recompute()
